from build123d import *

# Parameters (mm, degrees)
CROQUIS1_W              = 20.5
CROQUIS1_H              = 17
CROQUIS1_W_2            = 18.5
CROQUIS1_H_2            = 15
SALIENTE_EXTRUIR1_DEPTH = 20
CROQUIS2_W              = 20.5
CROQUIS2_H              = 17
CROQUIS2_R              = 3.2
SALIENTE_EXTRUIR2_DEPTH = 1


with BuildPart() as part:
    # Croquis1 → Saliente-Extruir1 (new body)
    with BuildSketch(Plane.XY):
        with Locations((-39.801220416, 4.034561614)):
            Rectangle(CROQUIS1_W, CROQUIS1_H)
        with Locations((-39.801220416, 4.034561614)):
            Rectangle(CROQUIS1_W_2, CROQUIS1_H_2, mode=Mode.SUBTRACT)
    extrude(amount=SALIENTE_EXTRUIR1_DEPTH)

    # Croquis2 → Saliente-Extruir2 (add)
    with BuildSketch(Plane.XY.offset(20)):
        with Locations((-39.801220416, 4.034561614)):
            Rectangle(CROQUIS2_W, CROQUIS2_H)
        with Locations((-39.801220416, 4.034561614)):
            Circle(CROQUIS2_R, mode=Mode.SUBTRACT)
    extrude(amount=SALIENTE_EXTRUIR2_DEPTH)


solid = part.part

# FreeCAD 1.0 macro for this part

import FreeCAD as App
import Part
import Sketcher

V = App.Vector
Q = App.Units.Quantity


def add_polygon(sketch, points):
    """Adds a closed chain of lines whose ends are joined by coincident constraints."""
    first, n = sketch.GeometryCount, len(points)
    for a, b in zip(points, points[1:] + points[:1]):
        sketch.addGeometry(Part.LineSegment(App.Vector(*a, 0), App.Vector(*b, 0)), False)
    for i in range(n):
        sketch.addConstraint(Sketcher.Constraint("Coincident", first + i, 2, first + (i + 1) % n, 1))

doc = App.newDocument("Part")
body = doc.addObject("PartDesign::Body", "Body")

sketch1 = doc.addObject("Sketcher::SketchObject", "Sketch")
body.addObject(sketch1)
sketch1.AttachmentSupport = (doc.XY_Plane, [""])
sketch1.MapMode = "FlatFace"
add_polygon(sketch1, [(-50.05122, 12.534562), (-50.05122, -4.465438), (-29.55122, -4.465438), (-29.55122, 12.534562)])
add_polygon(sketch1, [(-30.55122, -3.465438), (-49.05122, -3.465438), (-49.05122, 11.534562), (-30.55122, 11.534562)])
sketch1.addConstraint([
    Sketcher.Constraint("Vertical", 0),
    Sketcher.Constraint("Horizontal", 1),
    Sketcher.Constraint("Vertical", 2),
    Sketcher.Constraint("Horizontal", 3),
    Sketcher.Constraint("Horizontal", 4),
    Sketcher.Constraint("Vertical", 5),
    Sketcher.Constraint("Horizontal", 6),
    Sketcher.Constraint("Vertical", 7),
    Sketcher.Constraint("DistanceY", 0, 2, 0, 1, Q("17 mm")),
    Sketcher.Constraint("DistanceY", 5, 1, 5, 2, Q("15 mm")),
    Sketcher.Constraint("DistanceX", 1, 1, 1, 2, Q("20.5 mm")),
    Sketcher.Constraint("DistanceX", 4, 2, 4, 1, Q("18.5 mm")),
    Sketcher.Constraint("DistanceX", 0, 2, 4, 2, Q("1 mm")),
    Sketcher.Constraint("DistanceY", 0, 2, 4, 2, Q("1 mm")),
    Sketcher.Constraint("DistanceX", 0, 2, -1, 1, Q("50.05122 mm")),
    Sketcher.Constraint("DistanceY", 0, 2, -1, 1, Q("4.465438 mm")),
])
pad1 = doc.addObject("PartDesign::Pad", "Pad")
body.addObject(pad1)
pad1.Profile = sketch1
pad1.Length = 20

sketch2 = doc.addObject("Sketcher::SketchObject", "Sketch001")
body.addObject(sketch2)
sketch2.AttachmentSupport = (doc.XY_Plane, [""])
sketch2.MapMode = "FlatFace"
sketch2.AttachmentOffset = App.Placement(V(0, 0, 20), App.Rotation())
add_polygon(sketch2, [(-50.05122, 12.534562), (-50.05122, -4.465438), (-29.55122, -4.465438), (-29.55122, 12.534562)])
sketch2.addGeometry(Part.Circle(V(-39.80122, 4.034562, 0), V(0, 0, 1), 3.2), False)
sketch2.addConstraint([
    Sketcher.Constraint("Vertical", 0),
    Sketcher.Constraint("Horizontal", 1),
    Sketcher.Constraint("Vertical", 2),
    Sketcher.Constraint("Horizontal", 3),
    Sketcher.Constraint("Diameter", 4, Q("6.4 mm")),
    Sketcher.Constraint("DistanceY", 0, 2, 0, 1, Q("17 mm")),
    Sketcher.Constraint("DistanceX", 1, 1, 1, 2, Q("20.5 mm")),
    Sketcher.Constraint("DistanceY", 0, 2, 4, 3, Q("8.5 mm")),
    Sketcher.Constraint("DistanceX", 0, 2, 4, 3, Q("10.25 mm")),
    Sketcher.Constraint("DistanceX", 4, 3, -1, 1, Q("39.80122 mm")),
    Sketcher.Constraint("DistanceY", -1, 1, 4, 3, Q("4.034562 mm")),
])
pad2 = doc.addObject("PartDesign::Pad", "Pad001")
body.addObject(pad2)
pad2.Profile = sketch2
pad2.Length = 1

doc.recompute()
